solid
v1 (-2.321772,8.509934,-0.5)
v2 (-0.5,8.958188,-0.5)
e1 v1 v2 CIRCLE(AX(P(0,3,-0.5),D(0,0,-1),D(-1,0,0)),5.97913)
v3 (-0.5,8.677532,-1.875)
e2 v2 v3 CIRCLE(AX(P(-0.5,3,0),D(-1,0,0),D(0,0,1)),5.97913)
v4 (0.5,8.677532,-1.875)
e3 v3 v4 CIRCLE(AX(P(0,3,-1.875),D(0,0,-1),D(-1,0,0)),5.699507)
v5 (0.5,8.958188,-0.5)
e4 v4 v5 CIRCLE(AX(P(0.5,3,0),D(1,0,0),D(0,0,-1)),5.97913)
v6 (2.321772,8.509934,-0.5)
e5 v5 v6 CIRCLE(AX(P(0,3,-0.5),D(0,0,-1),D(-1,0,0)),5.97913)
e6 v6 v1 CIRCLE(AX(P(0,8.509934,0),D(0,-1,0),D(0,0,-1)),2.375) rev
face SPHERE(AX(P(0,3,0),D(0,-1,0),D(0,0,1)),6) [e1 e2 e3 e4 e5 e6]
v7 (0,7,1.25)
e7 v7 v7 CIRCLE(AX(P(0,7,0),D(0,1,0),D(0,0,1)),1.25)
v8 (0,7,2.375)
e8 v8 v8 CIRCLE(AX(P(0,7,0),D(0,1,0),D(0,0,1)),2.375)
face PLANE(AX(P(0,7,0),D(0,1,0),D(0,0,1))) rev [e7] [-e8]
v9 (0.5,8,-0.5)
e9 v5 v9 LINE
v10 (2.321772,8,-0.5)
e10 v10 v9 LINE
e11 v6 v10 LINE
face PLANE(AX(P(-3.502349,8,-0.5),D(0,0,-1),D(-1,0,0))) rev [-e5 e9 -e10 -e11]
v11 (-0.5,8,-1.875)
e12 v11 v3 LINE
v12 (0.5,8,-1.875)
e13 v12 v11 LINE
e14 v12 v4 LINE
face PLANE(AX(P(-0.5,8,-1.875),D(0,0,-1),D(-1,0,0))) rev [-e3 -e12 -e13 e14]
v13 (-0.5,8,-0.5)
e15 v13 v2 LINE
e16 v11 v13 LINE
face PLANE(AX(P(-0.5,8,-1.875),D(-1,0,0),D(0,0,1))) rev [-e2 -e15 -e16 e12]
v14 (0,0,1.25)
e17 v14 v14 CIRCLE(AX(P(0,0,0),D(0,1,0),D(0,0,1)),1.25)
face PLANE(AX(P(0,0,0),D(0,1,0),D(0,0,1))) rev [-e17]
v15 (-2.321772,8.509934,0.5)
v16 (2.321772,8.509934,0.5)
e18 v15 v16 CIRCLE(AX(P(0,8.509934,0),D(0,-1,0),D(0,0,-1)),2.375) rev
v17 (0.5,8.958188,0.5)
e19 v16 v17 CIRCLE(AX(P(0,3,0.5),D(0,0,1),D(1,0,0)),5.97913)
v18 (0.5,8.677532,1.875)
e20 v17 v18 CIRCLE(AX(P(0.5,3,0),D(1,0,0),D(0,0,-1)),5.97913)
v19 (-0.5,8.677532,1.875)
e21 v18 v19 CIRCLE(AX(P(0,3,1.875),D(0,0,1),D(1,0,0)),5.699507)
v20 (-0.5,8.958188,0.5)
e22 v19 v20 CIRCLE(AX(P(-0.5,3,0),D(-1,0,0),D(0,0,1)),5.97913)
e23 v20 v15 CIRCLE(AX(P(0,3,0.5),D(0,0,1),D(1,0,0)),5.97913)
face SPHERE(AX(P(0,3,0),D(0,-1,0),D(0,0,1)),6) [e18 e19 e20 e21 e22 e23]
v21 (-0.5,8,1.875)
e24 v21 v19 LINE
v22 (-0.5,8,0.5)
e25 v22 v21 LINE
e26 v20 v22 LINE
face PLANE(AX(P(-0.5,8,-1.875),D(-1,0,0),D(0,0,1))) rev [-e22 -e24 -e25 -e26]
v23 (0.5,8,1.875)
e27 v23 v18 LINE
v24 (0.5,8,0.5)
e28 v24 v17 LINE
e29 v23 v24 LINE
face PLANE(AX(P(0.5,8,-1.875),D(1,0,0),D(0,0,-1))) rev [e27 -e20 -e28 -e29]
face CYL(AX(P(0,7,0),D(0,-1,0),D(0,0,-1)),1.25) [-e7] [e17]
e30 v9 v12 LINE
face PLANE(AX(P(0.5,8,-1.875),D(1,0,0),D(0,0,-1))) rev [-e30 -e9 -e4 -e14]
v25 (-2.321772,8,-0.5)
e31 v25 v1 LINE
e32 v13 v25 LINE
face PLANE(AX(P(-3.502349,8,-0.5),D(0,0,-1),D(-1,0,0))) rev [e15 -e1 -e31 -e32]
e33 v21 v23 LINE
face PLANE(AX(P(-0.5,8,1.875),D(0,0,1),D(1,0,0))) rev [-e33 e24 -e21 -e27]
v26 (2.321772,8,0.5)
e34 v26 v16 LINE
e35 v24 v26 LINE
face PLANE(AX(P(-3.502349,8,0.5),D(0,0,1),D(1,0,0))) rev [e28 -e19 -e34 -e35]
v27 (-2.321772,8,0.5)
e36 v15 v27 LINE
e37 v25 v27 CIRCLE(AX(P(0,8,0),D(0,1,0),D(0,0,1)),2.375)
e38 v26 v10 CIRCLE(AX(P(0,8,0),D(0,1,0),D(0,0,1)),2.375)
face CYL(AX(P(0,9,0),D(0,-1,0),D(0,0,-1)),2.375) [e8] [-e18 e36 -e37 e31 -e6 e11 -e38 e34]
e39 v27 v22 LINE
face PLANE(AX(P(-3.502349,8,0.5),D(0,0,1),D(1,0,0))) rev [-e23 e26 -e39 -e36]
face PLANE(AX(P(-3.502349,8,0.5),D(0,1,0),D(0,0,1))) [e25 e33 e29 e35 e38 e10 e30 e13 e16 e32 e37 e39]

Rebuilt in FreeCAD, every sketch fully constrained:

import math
import FreeCAD as App
import Part
import Sketcher

V = App.Vector


def add_polygon(sketch, points):
    """Adds a closed chain of lines whose ends are joined by coincident constraints."""
    first, n = sketch.GeometryCount, len(points)
    for a, b in zip(points, points[1:] + points[:1]):
        sketch.addGeometry(Part.LineSegment(App.Vector(*a, 0), App.Vector(*b, 0)), False)
    for i in range(n):
        sketch.addConstraint(Sketcher.Constraint("Coincident", first + i, 2, first + (i + 1) % n, 1))

doc = App.newDocument("Part")
body = doc.addObject("PartDesign::Body", "Body")

sketch1 = doc.addObject("Sketcher::SketchObject", "Sketch")
body.addObject(sketch1)
sketch1.AttachmentSupport = (doc.XZ_Plane, [""])
sketch1.MapMode = "FlatFace"
sketch1.addGeometry(Part.Circle(V(0, 0, 0), V(0, 0, 1), 1.2), False)
sketch1.addConstraint([
    Sketcher.Constraint("Coincident", 0, 3, -1, 1),
    Sketcher.Constraint("Diameter", 0, 2.5),
])
pad1 = doc.addObject("PartDesign::Pad", "Pad")
body.addObject(pad1)
pad1.Profile = sketch1
pad1.Length = 7
pad1.Reversed = True

sketch2 = doc.addObject("Sketcher::SketchObject", "Sketch001")
body.addObject(sketch2)
sketch2.AttachmentSupport = (doc.XZ_Plane, [""])
sketch2.MapMode = "FlatFace"
sketch2.AttachmentOffset = App.Placement(V(0, 0, -7), App.Rotation())
sketch2.addGeometry(Part.Circle(V(0, 0, 0), V(0, 0, 1), 2.4), False)
sketch2.addConstraint([
    Sketcher.Constraint("Coincident", 0, 3, -1, 1),
    Sketcher.Constraint("Diameter", 0, 4.75),
])
pad2 = doc.addObject("PartDesign::Pad", "Pad001")
body.addObject(pad2)
pad2.Profile = sketch2
pad2.Length = 2
pad2.Reversed = True

sketch3 = doc.addObject("Sketcher::SketchObject", "Sketch002")
body.addObject(sketch3)
sketch3.AttachmentSupport = (doc.XZ_Plane, [""])
sketch3.MapMode = "FlatFace"
sketch3.AttachmentOffset = App.Placement(V(0, 0, -9), App.Rotation())
add_polygon(sketch3, [(3.5, 0.5), (3.5, -0.5), (-3.5, -0.5), (-3.5, 0.5)])
sketch3.addConstraint([
    Sketcher.Constraint("Vertical", 0),
    Sketcher.Constraint("Horizontal", 1),
    Sketcher.Constraint("Vertical", 2),
    Sketcher.Constraint("Horizontal", 3),
    Sketcher.Constraint("Symmetric", 0, 2, 2, 2, -1, 1),
    Sketcher.Constraint("DistanceY", 0, 2, 0, 1, 1.0),
    Sketcher.Constraint("DistanceX", 1, 2, 1, 1, 7.004697),
])
pocket1 = doc.addObject("PartDesign::Pocket", "Pocket")
body.addObject(pocket1)
pocket1.Profile = sketch3
pocket1.Length = 1
pocket1.Reversed = True

sketch4 = doc.addObject("Sketcher::SketchObject", "Sketch003")
body.addObject(sketch4)
sketch4.AttachmentSupport = (doc.XZ_Plane, [""])
sketch4.MapMode = "FlatFace"
sketch4.AttachmentOffset = App.Placement(V(0, 0, -9), App.Rotation())
add_polygon(sketch4, [(0.5, 1.9), (0.5, -1.9), (-0.5, -1.9), (-0.5, 1.9)])
sketch4.addConstraint([
    Sketcher.Constraint("Vertical", 0),
    Sketcher.Constraint("Horizontal", 1),
    Sketcher.Constraint("Vertical", 2),
    Sketcher.Constraint("Horizontal", 3),
    Sketcher.Constraint("Symmetric", 0, 2, 2, 2, -1, 1),
    Sketcher.Constraint("DistanceX", 1, 2, 1, 1, 1.0),
    Sketcher.Constraint("DistanceY", 0, 2, 0, 1, 3.75),
])
pocket2 = doc.addObject("PartDesign::Pocket", "Pocket001")
body.addObject(pocket2)
pocket2.Profile = sketch4
pocket2.Length = 1
pocket2.Reversed = True

sketch5 = doc.addObject("Sketcher::SketchObject", "Sketch004")
body.addObject(sketch5)
sketch5.AttachmentSupport = (doc.YZ_Plane, [""])
sketch5.MapMode = "FlatFace"
sketch5.addGeometry([
    Part.LineSegment(V(11, 0, 0), V(11, 4.5, 0)),
    Part.LineSegment(V(11, 4.5, 0), V(6.9, 4.5, 0)),
    Part.ArcOfCircle(Part.Circle(V(3, 0, 0), V(0, 0, 1), 6), math.radians(0), math.radians(49)),
    Part.LineSegment(V(9, 0, 0), V(11, 0, 0)),
], False)
sketch5.addConstraint([
    Sketcher.Constraint("Coincident", 0, 2, 1, 1),
    Sketcher.Constraint("Coincident", 1, 2, 2, 2),
    Sketcher.Constraint("Coincident", 2, 1, 3, 1),
    Sketcher.Constraint("Coincident", 3, 2, 0, 1),
    Sketcher.Constraint("Vertical", 0),
    Sketcher.Constraint("Horizontal", 1),
    Sketcher.Constraint("Horizontal", 3),
    Sketcher.Constraint("PointOnObject", 2, 3, -1),
    Sketcher.Constraint("PointOnObject", 2, 1, -1),
    Sketcher.Constraint("Radius", 2, 6.0),
    Sketcher.Constraint("DistanceX", -1, 1, 2, 3, 3.0),
    Sketcher.Constraint("DistanceX", 1, 2, 1, 1, 4.087889),
    Sketcher.Constraint("DistanceY", 0, 1, 0, 2, 4.549371),
])
groove = doc.addObject("PartDesign::Groove", "Groove")
body.addObject(groove)
groove.Profile = sketch5
groove.ReferenceAxis = (sketch5, ["H_Axis"])
groove.Angle = 360

doc.recompute()
